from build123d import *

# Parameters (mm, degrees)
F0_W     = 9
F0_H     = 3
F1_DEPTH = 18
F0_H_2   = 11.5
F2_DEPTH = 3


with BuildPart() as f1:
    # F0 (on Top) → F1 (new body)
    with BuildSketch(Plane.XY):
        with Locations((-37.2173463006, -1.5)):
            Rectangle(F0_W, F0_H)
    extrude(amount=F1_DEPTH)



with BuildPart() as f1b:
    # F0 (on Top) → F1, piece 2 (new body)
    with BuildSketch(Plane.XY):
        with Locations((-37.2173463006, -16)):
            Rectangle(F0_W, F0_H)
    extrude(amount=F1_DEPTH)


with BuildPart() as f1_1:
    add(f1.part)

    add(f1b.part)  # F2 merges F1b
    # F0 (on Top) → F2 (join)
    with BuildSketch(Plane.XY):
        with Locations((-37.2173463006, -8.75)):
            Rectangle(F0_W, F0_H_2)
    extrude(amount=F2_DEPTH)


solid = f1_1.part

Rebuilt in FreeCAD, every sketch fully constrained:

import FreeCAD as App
import Part
import Sketcher
from FreeCAD import Vector

doc = App.newDocument("Part")
body = doc.addObject("PartDesign::Body", "Body")

# Sketch on XY plane
sketch1 = doc.addObject("Sketcher::SketchObject", "Sketch")
body.addObject(sketch1)
sketch1.AttachmentSupport = (doc.XY_Plane, [""])
sketch1.MapMode = "FlatFace"
sketch1.addGeometry([
    Part.LineSegment(Vector(-41.7, 0, 0), Vector(-41.7, -3, 0)),
    Part.LineSegment(Vector(-41.7, -3, 0), Vector(-32.7, -3, 0)),
    Part.LineSegment(Vector(-32.7, -3, 0), Vector(-32.7, 0, 0)),
    Part.LineSegment(Vector(-32.7, 0, 0), Vector(-41.7, 0, 0)),
], False)
sketch1.addConstraint([
    Sketcher.Constraint("Coincident", 0, 2, 1, 1),
    Sketcher.Constraint("Coincident", 1, 2, 2, 1),
    Sketcher.Constraint("Coincident", 2, 2, 3, 1),
    Sketcher.Constraint("Coincident", 3, 2, 0, 1),
    Sketcher.Constraint("Vertical", 0),
    Sketcher.Constraint("Horizontal", 1),
    Sketcher.Constraint("Vertical", 2),
    Sketcher.Constraint("Horizontal", 3),
    Sketcher.Constraint("PointOnObject", 2, 2, -1),
    Sketcher.Constraint("DistanceX", 1, 1, 1, 2, 9.0),
    Sketcher.Constraint("DistanceY", 0, 2, 0, 1, 3.0),
    Sketcher.Constraint("DistanceX", 0, 2, -1, 1, 41.717346),
])
pad1 = doc.addObject("PartDesign::Pad", "Pad")
body.addObject(pad1)
pad1.Profile = sketch1
pad1.Length = 18
body2 = doc.addObject("PartDesign::Body", "Body001")

# Sketch on XY plane
sketch2 = doc.addObject("Sketcher::SketchObject", "Sketch001")
body2.addObject(sketch2)
sketch2.AttachmentSupport = (doc.getObject("XY_Plane001"), [""])
sketch2.MapMode = "FlatFace"
sketch2.addGeometry([
    Part.LineSegment(Vector(-41.7, -14.5, 0), Vector(-41.7, -17.5, 0)),
    Part.LineSegment(Vector(-41.7, -17.5, 0), Vector(-32.7, -17.5, 0)),
    Part.LineSegment(Vector(-32.7, -17.5, 0), Vector(-32.7, -14.5, 0)),
    Part.LineSegment(Vector(-32.7, -14.5, 0), Vector(-41.7, -14.5, 0)),
], False)
sketch2.addConstraint([
    Sketcher.Constraint("Coincident", 0, 2, 1, 1),
    Sketcher.Constraint("Coincident", 1, 2, 2, 1),
    Sketcher.Constraint("Coincident", 2, 2, 3, 1),
    Sketcher.Constraint("Coincident", 3, 2, 0, 1),
    Sketcher.Constraint("Vertical", 0),
    Sketcher.Constraint("Horizontal", 1),
    Sketcher.Constraint("Vertical", 2),
    Sketcher.Constraint("Horizontal", 3),
    Sketcher.Constraint("DistanceX", 1, 1, 1, 2, 9.0),
    Sketcher.Constraint("DistanceY", 0, 2, 0, 1, 3.0),
    Sketcher.Constraint("DistanceY", 0, 2, -1, 1, 17.5),
    Sketcher.Constraint("DistanceX", 0, 2, -1, 1, 41.717346),
])
pad2 = doc.addObject("PartDesign::Pad", "Pad001")
body2.addObject(pad2)
pad2.Profile = sketch2
pad2.Length = 18
body.AllowCompound = True
doc.recompute()

boolean = doc.addObject("PartDesign::Boolean", "Boolean")
body.addObject(boolean)
boolean.Type = "Fuse"
boolean.addObjects([body2])

# Sketch on XY plane
sketch3 = doc.addObject("Sketcher::SketchObject", "Sketch002")
body.addObject(sketch3)
sketch3.AttachmentSupport = (doc.XY_Plane, [""])
sketch3.MapMode = "FlatFace"
sketch3.addGeometry([
    Part.LineSegment(Vector(-42, -3, 0), Vector(-42, -14, 0)),
    Part.LineSegment(Vector(-42, -14, 0), Vector(-33, -14, 0)),
    Part.LineSegment(Vector(-33, -14, 0), Vector(-33, -3, 0)),
    Part.LineSegment(Vector(-33, -3, 0), Vector(-42, -3, 0)),
], False)
sketch3.addConstraint([
    Sketcher.Constraint("Coincident", 0, 2, 1, 1),
    Sketcher.Constraint("Coincident", 1, 2, 2, 1),
    Sketcher.Constraint("Coincident", 2, 2, 3, 1),
    Sketcher.Constraint("Coincident", 3, 2, 0, 1),
    Sketcher.Constraint("Vertical", 0),
    Sketcher.Constraint("Horizontal", 1),
    Sketcher.Constraint("Vertical", 2),
    Sketcher.Constraint("Horizontal", 3),
    Sketcher.Constraint("DistanceX", 1, 1, 1, 2, 9.0),
    Sketcher.Constraint("DistanceY", 0, 2, 0, 1, 11.5),
    Sketcher.Constraint("DistanceY", 2, 2, -1, 1, 3.0),
    Sketcher.Constraint("DistanceX", 0, 2, -1, 1, 41.717346),
])
pad3 = doc.addObject("PartDesign::Pad", "Pad002")
body.addObject(pad3)
pad3.Profile = sketch3
pad3.Length = 3

doc.recompute()
